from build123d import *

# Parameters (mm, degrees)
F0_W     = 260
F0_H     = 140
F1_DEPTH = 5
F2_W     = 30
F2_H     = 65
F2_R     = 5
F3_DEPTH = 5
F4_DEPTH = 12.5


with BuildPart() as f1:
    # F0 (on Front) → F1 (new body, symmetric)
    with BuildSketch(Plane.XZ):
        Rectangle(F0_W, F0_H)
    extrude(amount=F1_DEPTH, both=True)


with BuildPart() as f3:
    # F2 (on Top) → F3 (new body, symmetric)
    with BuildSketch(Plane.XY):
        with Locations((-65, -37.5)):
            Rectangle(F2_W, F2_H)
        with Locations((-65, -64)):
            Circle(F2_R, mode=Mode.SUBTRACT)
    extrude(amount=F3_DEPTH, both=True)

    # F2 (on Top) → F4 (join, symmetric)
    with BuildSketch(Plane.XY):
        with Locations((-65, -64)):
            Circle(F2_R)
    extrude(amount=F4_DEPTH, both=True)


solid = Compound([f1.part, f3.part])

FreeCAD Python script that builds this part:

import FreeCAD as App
import Part
import Sketcher
from FreeCAD import Vector


def add_polygon(sketch, points):
    """Adds a closed chain of lines whose ends are joined by coincident constraints."""
    first, n = sketch.GeometryCount, len(points)
    for a, b in zip(points, points[1:] + points[:1]):
        sketch.addGeometry(Part.LineSegment(App.Vector(*a, 0), App.Vector(*b, 0)), False)
    for i in range(n):
        sketch.addConstraint(Sketcher.Constraint("Coincident", first + i, 2, first + (i + 1) % n, 1))

doc = App.newDocument("Part")
body = doc.addObject("PartDesign::Body", "Body")

# Sketch on XZ plane
sketch1 = body.newObject("Sketcher::SketchObject", "Sketch")
sketch1.AttachmentSupport = (doc.getObject("XZ_Plane"), [""])
sketch1.MapMode = "FlatFace"
add_polygon(sketch1, [(-130, 70), (-130, -70), (130, -70), (130, 70)])  # lines 0-3
sketch1.addConstraint([
    Sketcher.Constraint("Vertical", 0),
    Sketcher.Constraint("Horizontal", 1),
    Sketcher.Constraint("Vertical", 2),
    Sketcher.Constraint("Horizontal", 3),
    Sketcher.Constraint("Symmetric", 0, 2, 2, 2, -1, 1),
    Sketcher.Constraint("DistanceX", 1, 1, 1, 2, 260.0),
    Sketcher.Constraint("DistanceY", 0, 2, 0, 1, 140.0),
])
pad1 = body.newObject("PartDesign::Pad", "Pad")
pad1.Profile = sketch1
pad1.Length = 10
pad1.Midplane = True
body2 = doc.addObject("PartDesign::Body", "Body001")

# Sketch on XY plane
sketch2 = body2.newObject("Sketcher::SketchObject", "Sketch001")
sketch2.AttachmentSupport = (doc.getObject("XY_Plane001"), [""])
sketch2.MapMode = "FlatFace"
add_polygon(sketch2, [(-80, -5), (-80, -70), (-50, -70), (-50, -5)])  # lines 0-3
sketch2.addGeometry(Part.Circle(Vector(-65, -64, 0), Vector(0, 0, 1), 5), False)  # 4
sketch2.addConstraint([
    Sketcher.Constraint("Vertical", 0),
    Sketcher.Constraint("Horizontal", 1),
    Sketcher.Constraint("Vertical", 2),
    Sketcher.Constraint("Horizontal", 3),
    Sketcher.Constraint("Diameter", 4, 10.0),
    Sketcher.Constraint("DistanceX", 1, 1, 1, 2, 30.0),
    Sketcher.Constraint("DistanceY", 0, 2, 0, 1, 65.0),
    Sketcher.Constraint("DistanceX", 4, 3, -1, 1, 65.0),
    Sketcher.Constraint("DistanceY", 4, 3, -1, 1, 64.0),
    Sketcher.Constraint("DistanceX", 0, 2, -1, 1, 80.0),
    Sketcher.Constraint("DistanceY", 0, 2, -1, 1, 70.0),
])
pad2 = body2.newObject("PartDesign::Pad", "Pad001")
pad2.Profile = sketch2
pad2.Length = 10
pad2.Midplane = True

# Sketch on XY plane
sketch3 = body2.newObject("Sketcher::SketchObject", "Sketch002")
sketch3.AttachmentSupport = (doc.getObject("XY_Plane001"), [""])
sketch3.MapMode = "FlatFace"
sketch3.addGeometry(Part.Circle(Vector(-65, -64, 0), Vector(0, 0, 1), 5), False)
sketch3.addConstraint([
    Sketcher.Constraint("Diameter", 0, 10.0),
    Sketcher.Constraint("DistanceX", 0, 3, -1, 1, 65.0),
    Sketcher.Constraint("DistanceY", 0, 3, -1, 1, 64.0),
])
pad3 = body2.newObject("PartDesign::Pad", "Pad002")
pad3.Profile = sketch3
pad3.Length = 25
pad3.Midplane = True

doc.recompute()
